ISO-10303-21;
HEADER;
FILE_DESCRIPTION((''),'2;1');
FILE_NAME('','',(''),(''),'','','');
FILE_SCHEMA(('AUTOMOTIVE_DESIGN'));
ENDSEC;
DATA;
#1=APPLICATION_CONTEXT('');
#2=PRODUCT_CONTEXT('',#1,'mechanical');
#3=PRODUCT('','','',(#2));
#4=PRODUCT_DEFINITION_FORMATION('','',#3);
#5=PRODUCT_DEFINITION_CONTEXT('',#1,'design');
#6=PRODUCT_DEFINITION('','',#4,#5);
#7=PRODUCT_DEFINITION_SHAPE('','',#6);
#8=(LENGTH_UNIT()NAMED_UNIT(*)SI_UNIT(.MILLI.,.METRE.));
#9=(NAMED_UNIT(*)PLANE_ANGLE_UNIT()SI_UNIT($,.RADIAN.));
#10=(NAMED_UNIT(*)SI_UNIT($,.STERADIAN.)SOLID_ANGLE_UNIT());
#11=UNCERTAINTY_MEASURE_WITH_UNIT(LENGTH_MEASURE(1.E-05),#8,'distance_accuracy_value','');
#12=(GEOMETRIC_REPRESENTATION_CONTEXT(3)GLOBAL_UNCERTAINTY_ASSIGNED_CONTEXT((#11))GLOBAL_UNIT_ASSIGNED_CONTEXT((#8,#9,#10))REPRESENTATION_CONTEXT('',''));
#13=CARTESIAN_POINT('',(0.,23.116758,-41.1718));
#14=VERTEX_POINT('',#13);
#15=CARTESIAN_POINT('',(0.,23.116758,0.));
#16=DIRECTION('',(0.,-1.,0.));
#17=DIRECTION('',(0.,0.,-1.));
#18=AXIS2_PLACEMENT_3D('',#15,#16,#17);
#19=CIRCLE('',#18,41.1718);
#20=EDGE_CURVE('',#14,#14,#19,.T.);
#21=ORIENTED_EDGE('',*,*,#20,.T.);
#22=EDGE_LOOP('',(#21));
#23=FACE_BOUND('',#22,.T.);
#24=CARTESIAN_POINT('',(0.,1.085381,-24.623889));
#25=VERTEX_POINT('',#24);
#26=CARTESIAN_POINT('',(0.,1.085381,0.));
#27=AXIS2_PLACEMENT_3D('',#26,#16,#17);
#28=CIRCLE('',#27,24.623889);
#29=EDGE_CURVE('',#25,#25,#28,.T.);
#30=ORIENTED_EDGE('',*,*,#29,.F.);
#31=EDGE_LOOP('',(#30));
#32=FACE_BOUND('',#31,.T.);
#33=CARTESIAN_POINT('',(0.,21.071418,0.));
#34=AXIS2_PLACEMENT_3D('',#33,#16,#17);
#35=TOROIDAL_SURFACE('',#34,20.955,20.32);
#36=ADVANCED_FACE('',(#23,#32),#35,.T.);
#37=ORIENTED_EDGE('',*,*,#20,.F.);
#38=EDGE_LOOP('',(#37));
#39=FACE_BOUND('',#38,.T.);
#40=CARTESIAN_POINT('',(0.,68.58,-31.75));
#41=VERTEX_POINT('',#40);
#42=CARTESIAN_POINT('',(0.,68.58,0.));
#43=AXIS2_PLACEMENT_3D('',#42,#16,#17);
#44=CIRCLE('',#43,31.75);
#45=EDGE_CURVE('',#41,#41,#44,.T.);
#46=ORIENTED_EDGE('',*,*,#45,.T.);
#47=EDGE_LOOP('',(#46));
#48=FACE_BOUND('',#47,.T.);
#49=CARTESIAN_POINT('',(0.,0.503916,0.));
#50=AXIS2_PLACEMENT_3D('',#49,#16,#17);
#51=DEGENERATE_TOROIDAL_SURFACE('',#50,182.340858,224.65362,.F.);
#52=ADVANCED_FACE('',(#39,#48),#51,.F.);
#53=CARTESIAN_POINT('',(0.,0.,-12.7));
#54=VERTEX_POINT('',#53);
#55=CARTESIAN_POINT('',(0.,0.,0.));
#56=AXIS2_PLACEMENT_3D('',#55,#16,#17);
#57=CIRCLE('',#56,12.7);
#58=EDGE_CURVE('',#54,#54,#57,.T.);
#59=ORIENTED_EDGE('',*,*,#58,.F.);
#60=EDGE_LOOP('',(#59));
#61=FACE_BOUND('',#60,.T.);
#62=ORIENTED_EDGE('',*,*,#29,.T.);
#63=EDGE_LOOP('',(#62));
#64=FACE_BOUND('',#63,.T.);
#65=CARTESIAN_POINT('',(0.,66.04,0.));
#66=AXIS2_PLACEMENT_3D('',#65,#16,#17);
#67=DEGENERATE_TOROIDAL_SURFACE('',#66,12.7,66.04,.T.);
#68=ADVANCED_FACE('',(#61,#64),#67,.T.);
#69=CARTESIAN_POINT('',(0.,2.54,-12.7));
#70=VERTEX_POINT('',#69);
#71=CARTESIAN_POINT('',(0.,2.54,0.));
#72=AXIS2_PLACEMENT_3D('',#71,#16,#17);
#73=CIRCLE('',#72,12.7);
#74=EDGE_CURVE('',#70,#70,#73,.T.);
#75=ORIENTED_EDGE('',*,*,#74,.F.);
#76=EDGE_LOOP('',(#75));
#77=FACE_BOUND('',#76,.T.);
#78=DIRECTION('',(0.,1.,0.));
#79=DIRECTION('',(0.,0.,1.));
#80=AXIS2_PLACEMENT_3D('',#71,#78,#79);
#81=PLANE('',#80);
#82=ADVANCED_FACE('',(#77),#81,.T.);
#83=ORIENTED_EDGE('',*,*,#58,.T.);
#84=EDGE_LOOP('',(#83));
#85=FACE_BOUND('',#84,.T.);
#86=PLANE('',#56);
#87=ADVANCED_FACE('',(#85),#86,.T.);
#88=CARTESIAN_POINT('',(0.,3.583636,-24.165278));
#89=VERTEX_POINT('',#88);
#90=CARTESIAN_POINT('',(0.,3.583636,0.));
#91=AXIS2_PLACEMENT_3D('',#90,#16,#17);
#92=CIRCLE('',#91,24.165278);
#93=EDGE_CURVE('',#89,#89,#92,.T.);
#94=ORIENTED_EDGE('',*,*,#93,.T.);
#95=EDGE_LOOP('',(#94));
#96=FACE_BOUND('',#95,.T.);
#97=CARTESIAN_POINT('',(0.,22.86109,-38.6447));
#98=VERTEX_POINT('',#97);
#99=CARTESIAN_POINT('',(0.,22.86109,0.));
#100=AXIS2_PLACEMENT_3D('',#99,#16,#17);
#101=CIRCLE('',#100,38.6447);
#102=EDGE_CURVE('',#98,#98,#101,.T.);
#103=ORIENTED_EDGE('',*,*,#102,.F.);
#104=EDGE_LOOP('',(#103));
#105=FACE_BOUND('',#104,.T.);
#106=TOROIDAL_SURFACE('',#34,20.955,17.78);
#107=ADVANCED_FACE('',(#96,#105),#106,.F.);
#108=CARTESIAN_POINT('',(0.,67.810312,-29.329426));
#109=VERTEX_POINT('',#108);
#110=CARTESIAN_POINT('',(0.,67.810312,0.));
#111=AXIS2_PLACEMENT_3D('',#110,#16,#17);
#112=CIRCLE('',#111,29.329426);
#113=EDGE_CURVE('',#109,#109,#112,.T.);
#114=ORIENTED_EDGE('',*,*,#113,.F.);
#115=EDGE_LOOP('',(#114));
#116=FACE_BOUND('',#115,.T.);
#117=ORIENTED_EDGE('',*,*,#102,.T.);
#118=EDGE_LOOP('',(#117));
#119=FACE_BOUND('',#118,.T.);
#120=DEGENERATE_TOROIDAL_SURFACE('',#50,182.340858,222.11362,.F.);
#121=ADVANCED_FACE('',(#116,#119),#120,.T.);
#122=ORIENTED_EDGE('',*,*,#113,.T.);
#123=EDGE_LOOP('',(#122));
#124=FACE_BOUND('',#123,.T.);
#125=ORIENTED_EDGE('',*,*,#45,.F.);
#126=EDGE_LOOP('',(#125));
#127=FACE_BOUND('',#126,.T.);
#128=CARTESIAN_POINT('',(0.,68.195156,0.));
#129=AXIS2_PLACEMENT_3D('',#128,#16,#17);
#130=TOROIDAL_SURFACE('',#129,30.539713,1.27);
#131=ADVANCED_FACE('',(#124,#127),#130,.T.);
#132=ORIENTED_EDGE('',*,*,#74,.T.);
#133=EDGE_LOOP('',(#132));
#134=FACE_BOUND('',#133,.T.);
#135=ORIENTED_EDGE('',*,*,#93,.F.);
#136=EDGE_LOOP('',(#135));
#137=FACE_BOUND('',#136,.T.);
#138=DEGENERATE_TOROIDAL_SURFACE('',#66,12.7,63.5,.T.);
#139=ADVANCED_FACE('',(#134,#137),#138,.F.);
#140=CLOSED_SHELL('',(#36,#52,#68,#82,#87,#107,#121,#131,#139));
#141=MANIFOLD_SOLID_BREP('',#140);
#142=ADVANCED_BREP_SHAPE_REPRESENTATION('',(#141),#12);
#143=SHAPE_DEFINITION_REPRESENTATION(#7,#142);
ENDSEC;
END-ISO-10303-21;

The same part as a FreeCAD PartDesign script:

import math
import FreeCAD as App
import Part
import Sketcher

V = App.Vector
Q = App.Units.Quantity

doc = App.newDocument("Part")
body = doc.addObject("PartDesign::Body", "Body")

sketch1 = body.newObject("Sketcher::SketchObject", "Sketch")
sketch1.AttachmentSupport = (doc.getObject("XY_Plane"), [""])
sketch1.MapMode = "FlatFace"
sketch1.addGeometry([
    Part.LineSegment(V(0, 0, 0), V(12.7, 0, 0)),
    Part.ArcOfCircle(Part.Circle(V(12.7, 66, 0), V(0, 0, 1), 66), math.radians(-90), math.radians(-79.6)),
    Part.ArcOfCircle(Part.Circle(V(21, 21.1, 0), V(0, 0, 1), 20.3), math.radians(-80), math.radians(6)),
    Part.ArcOfCircle(Part.Circle(V(-182.3, 0.5, 0), V(0, 0, 1), 224.7), math.radians(5.78), math.radians(17.64)),
    Part.ArcOfCircle(Part.Circle(V(30.5, 68.2, 0), V(0, 0, 1), 1.3), math.radians(18), math.radians(198)),
    Part.ArcOfCircle(Part.Circle(V(-182.3, 0.5, 0), V(0, 0, 1), 222.1), math.radians(5.78), math.radians(17.64)),
    Part.ArcOfCircle(Part.Circle(V(21, 21.1, 0), V(0, 0, 1), 17.8), math.radians(-80), math.radians(6)),
    Part.ArcOfCircle(Part.Circle(V(12.7, 66, 0), V(0, 0, 1), 63.5), math.radians(-90), math.radians(-79.6)),
    Part.LineSegment(V(12.7, 2.5, 0), V(0, 2.5, 0)),
    Part.LineSegment(V(0, 2.5, 0), V(0, 0, 0)),
], False)
sketch1.addConstraint([
    Sketcher.Constraint("Tangent", 0, 2, 1, 1),
    Sketcher.Constraint("Tangent", 1, 2, 2, 1),
    Sketcher.Constraint("Tangent", 2, 2, 3, 1),
    Sketcher.Constraint("Tangent", 3, 2, 4, 1),
    Sketcher.Constraint("Tangent", 4, 2, 5, 2),
    Sketcher.Constraint("Tangent", 5, 1, 6, 2),
    Sketcher.Constraint("Tangent", 6, 1, 7, 2),
    Sketcher.Constraint("Tangent", 7, 1, 8, 1),
    Sketcher.Constraint("Coincident", 8, 2, 9, 1),
    Sketcher.Constraint("Coincident", 9, 2, 0, 1),
    Sketcher.Constraint("Horizontal", 0),
    Sketcher.Constraint("Horizontal", 8),
    Sketcher.Constraint("Vertical", 9),
    Sketcher.Constraint("Coincident", 9, 2, -1, 1),
    Sketcher.Constraint("Coincident", 5, 3, 3, 3),
    Sketcher.Constraint("Coincident", 6, 3, 2, 3),
    Sketcher.Constraint("Coincident", 7, 3, 1, 3),
    Sketcher.Constraint("Radius", 1, Q("2.6 in")),
    Sketcher.Constraint("Radius", 2, Q("0.8 in")),
    Sketcher.Constraint("Radius", 6, Q("0.7 in")),
    Sketcher.Constraint("DistanceX", 0, 1, 0, 2, Q("0.5 in")),
    Sketcher.Constraint("DistanceY", -1, 1, 3, 2, Q("2.7 in")),
    Sketcher.Constraint("DistanceX", -1, 1, 3, 2, Q("1.25 in")),
    Sketcher.Constraint("DistanceX", -1, 1, 2, 3, Q("0.825 in")),
    Sketcher.Constraint("Radius", 3, Q("224.65362 mm")),
])
revolution = body.newObject("PartDesign::Revolution", "Revolution")
revolution.Profile = sketch1
revolution.ReferenceAxis = (sketch1, ["V_Axis"])
revolution.Angle = 360

doc.recompute()
